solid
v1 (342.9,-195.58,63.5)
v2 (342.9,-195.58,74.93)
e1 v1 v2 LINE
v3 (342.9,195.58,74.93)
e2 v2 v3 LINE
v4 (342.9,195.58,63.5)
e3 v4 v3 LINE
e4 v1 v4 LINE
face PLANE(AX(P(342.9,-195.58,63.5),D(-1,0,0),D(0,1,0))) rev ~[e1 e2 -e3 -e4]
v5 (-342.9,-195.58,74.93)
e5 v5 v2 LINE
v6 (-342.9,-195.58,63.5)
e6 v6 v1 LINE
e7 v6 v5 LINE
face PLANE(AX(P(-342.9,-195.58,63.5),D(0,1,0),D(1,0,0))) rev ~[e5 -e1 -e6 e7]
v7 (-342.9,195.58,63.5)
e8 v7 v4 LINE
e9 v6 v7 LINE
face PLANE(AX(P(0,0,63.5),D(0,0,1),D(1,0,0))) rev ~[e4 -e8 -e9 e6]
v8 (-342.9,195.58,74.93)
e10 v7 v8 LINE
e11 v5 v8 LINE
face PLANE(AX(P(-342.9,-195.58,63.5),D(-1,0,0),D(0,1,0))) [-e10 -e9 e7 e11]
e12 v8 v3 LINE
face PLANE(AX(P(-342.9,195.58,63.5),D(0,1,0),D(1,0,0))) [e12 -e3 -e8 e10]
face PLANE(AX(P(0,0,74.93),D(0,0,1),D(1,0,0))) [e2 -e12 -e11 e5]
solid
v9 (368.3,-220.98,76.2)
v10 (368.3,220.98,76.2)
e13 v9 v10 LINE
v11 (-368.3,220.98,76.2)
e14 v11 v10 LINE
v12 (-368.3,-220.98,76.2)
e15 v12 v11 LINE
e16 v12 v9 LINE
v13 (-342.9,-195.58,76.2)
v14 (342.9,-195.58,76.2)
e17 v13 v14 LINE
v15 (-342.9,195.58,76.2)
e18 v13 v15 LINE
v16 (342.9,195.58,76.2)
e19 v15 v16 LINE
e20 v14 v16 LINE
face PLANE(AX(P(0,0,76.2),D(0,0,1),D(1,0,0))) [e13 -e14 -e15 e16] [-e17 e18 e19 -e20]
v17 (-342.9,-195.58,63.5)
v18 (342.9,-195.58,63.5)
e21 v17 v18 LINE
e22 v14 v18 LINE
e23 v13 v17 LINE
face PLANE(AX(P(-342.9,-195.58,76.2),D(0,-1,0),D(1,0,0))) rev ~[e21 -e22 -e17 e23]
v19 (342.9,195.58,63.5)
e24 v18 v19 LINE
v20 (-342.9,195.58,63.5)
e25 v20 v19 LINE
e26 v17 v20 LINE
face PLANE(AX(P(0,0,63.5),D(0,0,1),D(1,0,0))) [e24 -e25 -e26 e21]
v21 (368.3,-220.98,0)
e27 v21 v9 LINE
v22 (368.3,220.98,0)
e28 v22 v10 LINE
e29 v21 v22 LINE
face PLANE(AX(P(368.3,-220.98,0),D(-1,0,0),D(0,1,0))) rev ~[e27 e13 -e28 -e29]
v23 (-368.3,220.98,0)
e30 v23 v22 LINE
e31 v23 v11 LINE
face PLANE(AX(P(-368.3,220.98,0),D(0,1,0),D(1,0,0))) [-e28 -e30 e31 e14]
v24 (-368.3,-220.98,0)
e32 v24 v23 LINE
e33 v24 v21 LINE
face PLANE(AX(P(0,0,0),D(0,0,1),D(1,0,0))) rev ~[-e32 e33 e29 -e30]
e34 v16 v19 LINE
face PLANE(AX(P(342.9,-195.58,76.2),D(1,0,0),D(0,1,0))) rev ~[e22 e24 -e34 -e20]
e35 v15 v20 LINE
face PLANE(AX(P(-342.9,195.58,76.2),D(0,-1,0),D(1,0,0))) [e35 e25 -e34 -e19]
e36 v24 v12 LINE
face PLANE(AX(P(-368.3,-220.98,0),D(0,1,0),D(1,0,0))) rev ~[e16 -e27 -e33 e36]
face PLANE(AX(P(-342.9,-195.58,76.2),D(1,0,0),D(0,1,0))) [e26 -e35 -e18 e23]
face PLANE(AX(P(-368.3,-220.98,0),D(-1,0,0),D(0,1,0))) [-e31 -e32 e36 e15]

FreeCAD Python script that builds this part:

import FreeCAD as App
import Part
import Sketcher
Q = App.Units.Quantity

doc = App.newDocument("Part")
params = doc.addObject("Spreadsheet::Sheet", "Params")
for row, (alias, value) in enumerate([
    ("sketch1_width", "29 in"),
    ("sketch1_height", "17.4 in"),
    ("pad1_length", "3 in"),
    ("sketch2_width", "27 in"),
    ("sketch2_height", "15.4 in"),
    ("pocket1_length", "0.5 in"),
    ("sketch3_width", "27 in"),
    ("sketch3_height", "15.4 in"),
    ("pad2_length", "0.45 in"),
], start=1):
    params.set(f"A{row}", alias)
    params.set(f"B{row}", "=" + value)
    params.setAlias(f"B{row}", alias)

body = doc.addObject("PartDesign::Body", "Body")

# Sketch on XY plane
sketch1 = doc.addObject("Sketcher::SketchObject", "Sketch")
body.addObject(sketch1)
sketch1.AttachmentSupport = (doc.XY_Plane, [""])
sketch1.MapMode = "FlatFace"
sketch1.addGeometry(Part.LineSegment(App.Vector(-368, 221, 0), App.Vector(-368, -221, 0)), False)
sketch1.addGeometry(Part.LineSegment(App.Vector(-368, -221, 0), App.Vector(368, -221, 0)), False)
sketch1.addGeometry(Part.LineSegment(App.Vector(368, -221, 0), App.Vector(368, 221, 0)), False)
sketch1.addGeometry(Part.LineSegment(App.Vector(368, 221, 0), App.Vector(-368, 221, 0)), False)
sketch1.addConstraint(Sketcher.Constraint("Coincident", 0, 2, 1, 1))
sketch1.addConstraint(Sketcher.Constraint("Coincident", 1, 2, 2, 1))
sketch1.addConstraint(Sketcher.Constraint("Coincident", 2, 2, 3, 1))
sketch1.addConstraint(Sketcher.Constraint("Coincident", 3, 2, 0, 1))
sketch1.addConstraint(Sketcher.Constraint("Vertical", 0))
sketch1.addConstraint(Sketcher.Constraint("Horizontal", 1))
sketch1.addConstraint(Sketcher.Constraint("Vertical", 2))
sketch1.addConstraint(Sketcher.Constraint("Horizontal", 3))
sketch1.addConstraint(Sketcher.Constraint("Symmetric", 0, 2, 2, 2, -1, 1))
sketch1.addConstraint(Sketcher.Constraint("DistanceX", 1, 1, 1, 2, Q("29 in")))
sketch1.addConstraint(Sketcher.Constraint("DistanceY", 0, 2, 0, 1, Q("17.4 in")))
sketch1.setExpression("Constraints[9]", "Params.sketch1_width")
sketch1.setExpression("Constraints[10]", "Params.sketch1_height")
pad1 = doc.addObject("PartDesign::Pad", "Pad")
body.addObject(pad1)
pad1.Profile = sketch1
pad1.setExpression("Length", "Params.pad1_length")

# Sketch on XY plane
sketch2 = doc.addObject("Sketcher::SketchObject", "Sketch001")
body.addObject(sketch2)
sketch2.AttachmentSupport = (doc.XY_Plane, [""])
sketch2.MapMode = "FlatFace"
sketch2.AttachmentOffset = App.Placement(App.Vector(0, 0, 3 * 25.4), App.Rotation())
sketch2.addGeometry(Part.LineSegment(App.Vector(-343, 196, 0), App.Vector(-343, -196, 0)), False)
sketch2.addGeometry(Part.LineSegment(App.Vector(-343, -196, 0), App.Vector(343, -196, 0)), False)
sketch2.addGeometry(Part.LineSegment(App.Vector(343, -196, 0), App.Vector(343, 196, 0)), False)
sketch2.addGeometry(Part.LineSegment(App.Vector(343, 196, 0), App.Vector(-343, 196, 0)), False)
sketch2.addConstraint(Sketcher.Constraint("Coincident", 0, 2, 1, 1))
sketch2.addConstraint(Sketcher.Constraint("Coincident", 1, 2, 2, 1))
sketch2.addConstraint(Sketcher.Constraint("Coincident", 2, 2, 3, 1))
sketch2.addConstraint(Sketcher.Constraint("Coincident", 3, 2, 0, 1))
sketch2.addConstraint(Sketcher.Constraint("Vertical", 0))
sketch2.addConstraint(Sketcher.Constraint("Horizontal", 1))
sketch2.addConstraint(Sketcher.Constraint("Vertical", 2))
sketch2.addConstraint(Sketcher.Constraint("Horizontal", 3))
sketch2.addConstraint(Sketcher.Constraint("Symmetric", 0, 2, 2, 2, -1, 1))
sketch2.addConstraint(Sketcher.Constraint("DistanceX", 1, 1, 1, 2, Q("27 in")))
sketch2.addConstraint(Sketcher.Constraint("DistanceY", 0, 2, 0, 1, Q("15.4 in")))
sketch2.setExpression("Constraints[9]", "Params.sketch2_width")
sketch2.setExpression("Constraints[10]", "Params.sketch2_height")
pocket1 = doc.addObject("PartDesign::Pocket", "Pocket")
body.addObject(pocket1)
pocket1.Profile = sketch2
pocket1.setExpression("Length", "Params.pocket1_length")
body2 = doc.addObject("PartDesign::Body", "Body001")

# Sketch on XY plane
sketch3 = doc.addObject("Sketcher::SketchObject", "Sketch002")
body2.addObject(sketch3)
sketch3.AttachmentSupport = (doc.getObject("XY_Plane001"), [""])
sketch3.MapMode = "FlatFace"
sketch3.AttachmentOffset = App.Placement(App.Vector(0, 0, 2.5 * 25.4), App.Rotation())
sketch3.addGeometry(Part.LineSegment(App.Vector(-343, 196, 0), App.Vector(-343, -196, 0)), False)
sketch3.addGeometry(Part.LineSegment(App.Vector(-343, -196, 0), App.Vector(343, -196, 0)), False)
sketch3.addGeometry(Part.LineSegment(App.Vector(343, -196, 0), App.Vector(343, 196, 0)), False)
sketch3.addGeometry(Part.LineSegment(App.Vector(343, 196, 0), App.Vector(-343, 196, 0)), False)
sketch3.addConstraint(Sketcher.Constraint("Coincident", 0, 2, 1, 1))
sketch3.addConstraint(Sketcher.Constraint("Coincident", 1, 2, 2, 1))
sketch3.addConstraint(Sketcher.Constraint("Coincident", 2, 2, 3, 1))
sketch3.addConstraint(Sketcher.Constraint("Coincident", 3, 2, 0, 1))
sketch3.addConstraint(Sketcher.Constraint("Vertical", 0))
sketch3.addConstraint(Sketcher.Constraint("Horizontal", 1))
sketch3.addConstraint(Sketcher.Constraint("Vertical", 2))
sketch3.addConstraint(Sketcher.Constraint("Horizontal", 3))
sketch3.addConstraint(Sketcher.Constraint("Symmetric", 0, 2, 2, 2, -1, 1))
sketch3.addConstraint(Sketcher.Constraint("DistanceX", 1, 1, 1, 2, Q("27 in")))
sketch3.addConstraint(Sketcher.Constraint("DistanceY", 0, 2, 0, 1, Q("15.4 in")))
sketch3.setExpression("Constraints[9]", "Params.sketch3_width")
sketch3.setExpression("Constraints[10]", "Params.sketch3_height")
pad2 = doc.addObject("PartDesign::Pad", "Pad001")
body2.addObject(pad2)
pad2.Profile = sketch3
pad2.setExpression("Length", "Params.pad2_length")

doc.recompute()
